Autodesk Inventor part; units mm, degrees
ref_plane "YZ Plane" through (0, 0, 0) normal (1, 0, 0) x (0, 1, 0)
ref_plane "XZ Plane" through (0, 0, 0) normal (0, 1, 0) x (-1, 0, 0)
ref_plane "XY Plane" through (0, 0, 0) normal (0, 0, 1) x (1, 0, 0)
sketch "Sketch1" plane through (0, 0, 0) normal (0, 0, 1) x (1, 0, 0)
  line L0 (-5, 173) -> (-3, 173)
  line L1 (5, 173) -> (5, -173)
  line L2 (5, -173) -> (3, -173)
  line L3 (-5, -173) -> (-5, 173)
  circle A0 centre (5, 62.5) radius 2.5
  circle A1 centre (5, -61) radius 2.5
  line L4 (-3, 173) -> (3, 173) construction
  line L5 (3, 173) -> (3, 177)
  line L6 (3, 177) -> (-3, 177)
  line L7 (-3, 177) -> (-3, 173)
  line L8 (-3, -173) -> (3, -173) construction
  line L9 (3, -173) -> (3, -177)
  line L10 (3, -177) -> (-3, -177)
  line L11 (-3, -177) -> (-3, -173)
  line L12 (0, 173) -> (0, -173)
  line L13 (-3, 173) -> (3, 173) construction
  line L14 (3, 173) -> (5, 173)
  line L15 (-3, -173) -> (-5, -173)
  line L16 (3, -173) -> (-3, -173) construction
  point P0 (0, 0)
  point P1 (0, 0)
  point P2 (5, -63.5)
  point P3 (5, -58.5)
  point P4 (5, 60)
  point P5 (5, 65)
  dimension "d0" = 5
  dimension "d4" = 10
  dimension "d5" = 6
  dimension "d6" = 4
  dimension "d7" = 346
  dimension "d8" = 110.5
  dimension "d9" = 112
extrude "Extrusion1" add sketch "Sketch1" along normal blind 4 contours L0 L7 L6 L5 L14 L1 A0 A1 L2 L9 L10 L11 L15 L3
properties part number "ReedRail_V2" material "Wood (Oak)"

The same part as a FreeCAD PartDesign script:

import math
import FreeCAD as App
import Part
import Sketcher

doc = App.newDocument("Part")
body = doc.addObject("PartDesign::Body", "Body")

sketch1 = doc.addObject("Sketcher::SketchObject", "Sketch")
body.addObject(sketch1)
sketch1.AttachmentSupport = (doc.XY_Plane, [""])
sketch1.MapMode = "FlatFace"
sketch1.addGeometry([
    Part.LineSegment(App.Vector(-3, 173, 0), App.Vector(-5, 173, 0)),
    Part.LineSegment(App.Vector(-5, 173, 0), App.Vector(-5, -173, 0)),
    Part.LineSegment(App.Vector(-5, -173, 0), App.Vector(-3, -173, 0)),
    Part.LineSegment(App.Vector(-3, -173, 0), App.Vector(-3, -177, 0)),
    Part.LineSegment(App.Vector(-3, -177, 0), App.Vector(3, -177, 0)),
    Part.LineSegment(App.Vector(3, -177, 0), App.Vector(3, -173, 0)),
    Part.LineSegment(App.Vector(3, -173, 0), App.Vector(5, -173, 0)),
    Part.LineSegment(App.Vector(5, -173, 0), App.Vector(5, -63.5, 0)),
    Part.ArcOfCircle(Part.Circle(App.Vector(5, -61, 0), App.Vector(0, 0, 1), 2.5), math.radians(90), math.radians(270)),
    Part.LineSegment(App.Vector(5, -58.5, 0), App.Vector(5, 60, 0)),
    Part.ArcOfCircle(Part.Circle(App.Vector(5, 62.5, 0), App.Vector(0, 0, 1), 2.5), math.radians(90), math.radians(270)),
    Part.LineSegment(App.Vector(5, 65, 0), App.Vector(5, 173, 0)),
    Part.LineSegment(App.Vector(5, 173, 0), App.Vector(3, 173, 0)),
    Part.LineSegment(App.Vector(3, 173, 0), App.Vector(3, 177, 0)),
    Part.LineSegment(App.Vector(3, 177, 0), App.Vector(-3, 177, 0)),
    Part.LineSegment(App.Vector(-3, 177, 0), App.Vector(-3, 173, 0)),
], False)
sketch1.addConstraint([
    Sketcher.Constraint("Coincident", 0, 2, 1, 1),
    Sketcher.Constraint("Coincident", 1, 2, 2, 1),
    Sketcher.Constraint("Coincident", 2, 2, 3, 1),
    Sketcher.Constraint("Coincident", 3, 2, 4, 1),
    Sketcher.Constraint("Coincident", 4, 2, 5, 1),
    Sketcher.Constraint("Coincident", 5, 2, 6, 1),
    Sketcher.Constraint("Coincident", 6, 2, 7, 1),
    Sketcher.Constraint("Coincident", 7, 2, 8, 2),
    Sketcher.Constraint("Coincident", 8, 1, 9, 1),
    Sketcher.Constraint("Coincident", 9, 2, 10, 2),
    Sketcher.Constraint("Coincident", 10, 1, 11, 1),
    Sketcher.Constraint("Coincident", 11, 2, 12, 1),
    Sketcher.Constraint("Coincident", 12, 2, 13, 1),
    Sketcher.Constraint("Coincident", 13, 2, 14, 1),
    Sketcher.Constraint("Coincident", 14, 2, 15, 1),
    Sketcher.Constraint("Coincident", 15, 2, 0, 1),
    Sketcher.Constraint("Horizontal", 0),
    Sketcher.Constraint("Vertical", 1),
    Sketcher.Constraint("Horizontal", 2),
    Sketcher.Constraint("Vertical", 3),
    Sketcher.Constraint("Horizontal", 4),
    Sketcher.Constraint("Vertical", 5),
    Sketcher.Constraint("Horizontal", 6),
    Sketcher.Constraint("Vertical", 7),
    Sketcher.Constraint("Vertical", 9),
    Sketcher.Constraint("Vertical", 11),
    Sketcher.Constraint("Horizontal", 12),
    Sketcher.Constraint("Vertical", 13),
    Sketcher.Constraint("Horizontal", 14),
    Sketcher.Constraint("Vertical", 15),
    Sketcher.Constraint("Equal", 8, 10),
    Sketcher.Constraint("Symmetric", 0, 2, 6, 2, -1, 1),
    Sketcher.Constraint("Symmetric", 1, 2, 11, 2, -1, 1),
    Sketcher.Constraint("Symmetric", 3, 2, 13, 2, -1, 1),
    Sketcher.Constraint("Symmetric", 2, 2, 5, 2, -2),
    Sketcher.Constraint("Vertical", 8, 3, 10, 3),
    Sketcher.Constraint("Vertical", 10, 3, 6, 2),
    Sketcher.Constraint("Vertical", 7, 2, 8, 1),
    Sketcher.Constraint("Vertical", 3, 2, 14, 2),
    Sketcher.Constraint("Radius", 8, 2.5),
    Sketcher.Constraint("DistanceX", 4, 1, 4, 2, 6.0),
    Sketcher.Constraint("DistanceY", 1, 2, 1, 1, 346.0),
    Sketcher.Constraint("DistanceY", 3, 2, 3, 1, 4.0),
    Sketcher.Constraint("DistanceX", -1, 1, 8, 3, 5.0),
    Sketcher.Constraint("DistanceY", 1, 2, 8, 3, 112.0),
    Sketcher.Constraint("DistanceY", 10, 1, 13, 2, 112.0),
])
pad1 = doc.addObject("PartDesign::Pad", "Pad")
body.addObject(pad1)
pad1.Profile = sketch1
pad1.Length = 4

doc.recompute()
